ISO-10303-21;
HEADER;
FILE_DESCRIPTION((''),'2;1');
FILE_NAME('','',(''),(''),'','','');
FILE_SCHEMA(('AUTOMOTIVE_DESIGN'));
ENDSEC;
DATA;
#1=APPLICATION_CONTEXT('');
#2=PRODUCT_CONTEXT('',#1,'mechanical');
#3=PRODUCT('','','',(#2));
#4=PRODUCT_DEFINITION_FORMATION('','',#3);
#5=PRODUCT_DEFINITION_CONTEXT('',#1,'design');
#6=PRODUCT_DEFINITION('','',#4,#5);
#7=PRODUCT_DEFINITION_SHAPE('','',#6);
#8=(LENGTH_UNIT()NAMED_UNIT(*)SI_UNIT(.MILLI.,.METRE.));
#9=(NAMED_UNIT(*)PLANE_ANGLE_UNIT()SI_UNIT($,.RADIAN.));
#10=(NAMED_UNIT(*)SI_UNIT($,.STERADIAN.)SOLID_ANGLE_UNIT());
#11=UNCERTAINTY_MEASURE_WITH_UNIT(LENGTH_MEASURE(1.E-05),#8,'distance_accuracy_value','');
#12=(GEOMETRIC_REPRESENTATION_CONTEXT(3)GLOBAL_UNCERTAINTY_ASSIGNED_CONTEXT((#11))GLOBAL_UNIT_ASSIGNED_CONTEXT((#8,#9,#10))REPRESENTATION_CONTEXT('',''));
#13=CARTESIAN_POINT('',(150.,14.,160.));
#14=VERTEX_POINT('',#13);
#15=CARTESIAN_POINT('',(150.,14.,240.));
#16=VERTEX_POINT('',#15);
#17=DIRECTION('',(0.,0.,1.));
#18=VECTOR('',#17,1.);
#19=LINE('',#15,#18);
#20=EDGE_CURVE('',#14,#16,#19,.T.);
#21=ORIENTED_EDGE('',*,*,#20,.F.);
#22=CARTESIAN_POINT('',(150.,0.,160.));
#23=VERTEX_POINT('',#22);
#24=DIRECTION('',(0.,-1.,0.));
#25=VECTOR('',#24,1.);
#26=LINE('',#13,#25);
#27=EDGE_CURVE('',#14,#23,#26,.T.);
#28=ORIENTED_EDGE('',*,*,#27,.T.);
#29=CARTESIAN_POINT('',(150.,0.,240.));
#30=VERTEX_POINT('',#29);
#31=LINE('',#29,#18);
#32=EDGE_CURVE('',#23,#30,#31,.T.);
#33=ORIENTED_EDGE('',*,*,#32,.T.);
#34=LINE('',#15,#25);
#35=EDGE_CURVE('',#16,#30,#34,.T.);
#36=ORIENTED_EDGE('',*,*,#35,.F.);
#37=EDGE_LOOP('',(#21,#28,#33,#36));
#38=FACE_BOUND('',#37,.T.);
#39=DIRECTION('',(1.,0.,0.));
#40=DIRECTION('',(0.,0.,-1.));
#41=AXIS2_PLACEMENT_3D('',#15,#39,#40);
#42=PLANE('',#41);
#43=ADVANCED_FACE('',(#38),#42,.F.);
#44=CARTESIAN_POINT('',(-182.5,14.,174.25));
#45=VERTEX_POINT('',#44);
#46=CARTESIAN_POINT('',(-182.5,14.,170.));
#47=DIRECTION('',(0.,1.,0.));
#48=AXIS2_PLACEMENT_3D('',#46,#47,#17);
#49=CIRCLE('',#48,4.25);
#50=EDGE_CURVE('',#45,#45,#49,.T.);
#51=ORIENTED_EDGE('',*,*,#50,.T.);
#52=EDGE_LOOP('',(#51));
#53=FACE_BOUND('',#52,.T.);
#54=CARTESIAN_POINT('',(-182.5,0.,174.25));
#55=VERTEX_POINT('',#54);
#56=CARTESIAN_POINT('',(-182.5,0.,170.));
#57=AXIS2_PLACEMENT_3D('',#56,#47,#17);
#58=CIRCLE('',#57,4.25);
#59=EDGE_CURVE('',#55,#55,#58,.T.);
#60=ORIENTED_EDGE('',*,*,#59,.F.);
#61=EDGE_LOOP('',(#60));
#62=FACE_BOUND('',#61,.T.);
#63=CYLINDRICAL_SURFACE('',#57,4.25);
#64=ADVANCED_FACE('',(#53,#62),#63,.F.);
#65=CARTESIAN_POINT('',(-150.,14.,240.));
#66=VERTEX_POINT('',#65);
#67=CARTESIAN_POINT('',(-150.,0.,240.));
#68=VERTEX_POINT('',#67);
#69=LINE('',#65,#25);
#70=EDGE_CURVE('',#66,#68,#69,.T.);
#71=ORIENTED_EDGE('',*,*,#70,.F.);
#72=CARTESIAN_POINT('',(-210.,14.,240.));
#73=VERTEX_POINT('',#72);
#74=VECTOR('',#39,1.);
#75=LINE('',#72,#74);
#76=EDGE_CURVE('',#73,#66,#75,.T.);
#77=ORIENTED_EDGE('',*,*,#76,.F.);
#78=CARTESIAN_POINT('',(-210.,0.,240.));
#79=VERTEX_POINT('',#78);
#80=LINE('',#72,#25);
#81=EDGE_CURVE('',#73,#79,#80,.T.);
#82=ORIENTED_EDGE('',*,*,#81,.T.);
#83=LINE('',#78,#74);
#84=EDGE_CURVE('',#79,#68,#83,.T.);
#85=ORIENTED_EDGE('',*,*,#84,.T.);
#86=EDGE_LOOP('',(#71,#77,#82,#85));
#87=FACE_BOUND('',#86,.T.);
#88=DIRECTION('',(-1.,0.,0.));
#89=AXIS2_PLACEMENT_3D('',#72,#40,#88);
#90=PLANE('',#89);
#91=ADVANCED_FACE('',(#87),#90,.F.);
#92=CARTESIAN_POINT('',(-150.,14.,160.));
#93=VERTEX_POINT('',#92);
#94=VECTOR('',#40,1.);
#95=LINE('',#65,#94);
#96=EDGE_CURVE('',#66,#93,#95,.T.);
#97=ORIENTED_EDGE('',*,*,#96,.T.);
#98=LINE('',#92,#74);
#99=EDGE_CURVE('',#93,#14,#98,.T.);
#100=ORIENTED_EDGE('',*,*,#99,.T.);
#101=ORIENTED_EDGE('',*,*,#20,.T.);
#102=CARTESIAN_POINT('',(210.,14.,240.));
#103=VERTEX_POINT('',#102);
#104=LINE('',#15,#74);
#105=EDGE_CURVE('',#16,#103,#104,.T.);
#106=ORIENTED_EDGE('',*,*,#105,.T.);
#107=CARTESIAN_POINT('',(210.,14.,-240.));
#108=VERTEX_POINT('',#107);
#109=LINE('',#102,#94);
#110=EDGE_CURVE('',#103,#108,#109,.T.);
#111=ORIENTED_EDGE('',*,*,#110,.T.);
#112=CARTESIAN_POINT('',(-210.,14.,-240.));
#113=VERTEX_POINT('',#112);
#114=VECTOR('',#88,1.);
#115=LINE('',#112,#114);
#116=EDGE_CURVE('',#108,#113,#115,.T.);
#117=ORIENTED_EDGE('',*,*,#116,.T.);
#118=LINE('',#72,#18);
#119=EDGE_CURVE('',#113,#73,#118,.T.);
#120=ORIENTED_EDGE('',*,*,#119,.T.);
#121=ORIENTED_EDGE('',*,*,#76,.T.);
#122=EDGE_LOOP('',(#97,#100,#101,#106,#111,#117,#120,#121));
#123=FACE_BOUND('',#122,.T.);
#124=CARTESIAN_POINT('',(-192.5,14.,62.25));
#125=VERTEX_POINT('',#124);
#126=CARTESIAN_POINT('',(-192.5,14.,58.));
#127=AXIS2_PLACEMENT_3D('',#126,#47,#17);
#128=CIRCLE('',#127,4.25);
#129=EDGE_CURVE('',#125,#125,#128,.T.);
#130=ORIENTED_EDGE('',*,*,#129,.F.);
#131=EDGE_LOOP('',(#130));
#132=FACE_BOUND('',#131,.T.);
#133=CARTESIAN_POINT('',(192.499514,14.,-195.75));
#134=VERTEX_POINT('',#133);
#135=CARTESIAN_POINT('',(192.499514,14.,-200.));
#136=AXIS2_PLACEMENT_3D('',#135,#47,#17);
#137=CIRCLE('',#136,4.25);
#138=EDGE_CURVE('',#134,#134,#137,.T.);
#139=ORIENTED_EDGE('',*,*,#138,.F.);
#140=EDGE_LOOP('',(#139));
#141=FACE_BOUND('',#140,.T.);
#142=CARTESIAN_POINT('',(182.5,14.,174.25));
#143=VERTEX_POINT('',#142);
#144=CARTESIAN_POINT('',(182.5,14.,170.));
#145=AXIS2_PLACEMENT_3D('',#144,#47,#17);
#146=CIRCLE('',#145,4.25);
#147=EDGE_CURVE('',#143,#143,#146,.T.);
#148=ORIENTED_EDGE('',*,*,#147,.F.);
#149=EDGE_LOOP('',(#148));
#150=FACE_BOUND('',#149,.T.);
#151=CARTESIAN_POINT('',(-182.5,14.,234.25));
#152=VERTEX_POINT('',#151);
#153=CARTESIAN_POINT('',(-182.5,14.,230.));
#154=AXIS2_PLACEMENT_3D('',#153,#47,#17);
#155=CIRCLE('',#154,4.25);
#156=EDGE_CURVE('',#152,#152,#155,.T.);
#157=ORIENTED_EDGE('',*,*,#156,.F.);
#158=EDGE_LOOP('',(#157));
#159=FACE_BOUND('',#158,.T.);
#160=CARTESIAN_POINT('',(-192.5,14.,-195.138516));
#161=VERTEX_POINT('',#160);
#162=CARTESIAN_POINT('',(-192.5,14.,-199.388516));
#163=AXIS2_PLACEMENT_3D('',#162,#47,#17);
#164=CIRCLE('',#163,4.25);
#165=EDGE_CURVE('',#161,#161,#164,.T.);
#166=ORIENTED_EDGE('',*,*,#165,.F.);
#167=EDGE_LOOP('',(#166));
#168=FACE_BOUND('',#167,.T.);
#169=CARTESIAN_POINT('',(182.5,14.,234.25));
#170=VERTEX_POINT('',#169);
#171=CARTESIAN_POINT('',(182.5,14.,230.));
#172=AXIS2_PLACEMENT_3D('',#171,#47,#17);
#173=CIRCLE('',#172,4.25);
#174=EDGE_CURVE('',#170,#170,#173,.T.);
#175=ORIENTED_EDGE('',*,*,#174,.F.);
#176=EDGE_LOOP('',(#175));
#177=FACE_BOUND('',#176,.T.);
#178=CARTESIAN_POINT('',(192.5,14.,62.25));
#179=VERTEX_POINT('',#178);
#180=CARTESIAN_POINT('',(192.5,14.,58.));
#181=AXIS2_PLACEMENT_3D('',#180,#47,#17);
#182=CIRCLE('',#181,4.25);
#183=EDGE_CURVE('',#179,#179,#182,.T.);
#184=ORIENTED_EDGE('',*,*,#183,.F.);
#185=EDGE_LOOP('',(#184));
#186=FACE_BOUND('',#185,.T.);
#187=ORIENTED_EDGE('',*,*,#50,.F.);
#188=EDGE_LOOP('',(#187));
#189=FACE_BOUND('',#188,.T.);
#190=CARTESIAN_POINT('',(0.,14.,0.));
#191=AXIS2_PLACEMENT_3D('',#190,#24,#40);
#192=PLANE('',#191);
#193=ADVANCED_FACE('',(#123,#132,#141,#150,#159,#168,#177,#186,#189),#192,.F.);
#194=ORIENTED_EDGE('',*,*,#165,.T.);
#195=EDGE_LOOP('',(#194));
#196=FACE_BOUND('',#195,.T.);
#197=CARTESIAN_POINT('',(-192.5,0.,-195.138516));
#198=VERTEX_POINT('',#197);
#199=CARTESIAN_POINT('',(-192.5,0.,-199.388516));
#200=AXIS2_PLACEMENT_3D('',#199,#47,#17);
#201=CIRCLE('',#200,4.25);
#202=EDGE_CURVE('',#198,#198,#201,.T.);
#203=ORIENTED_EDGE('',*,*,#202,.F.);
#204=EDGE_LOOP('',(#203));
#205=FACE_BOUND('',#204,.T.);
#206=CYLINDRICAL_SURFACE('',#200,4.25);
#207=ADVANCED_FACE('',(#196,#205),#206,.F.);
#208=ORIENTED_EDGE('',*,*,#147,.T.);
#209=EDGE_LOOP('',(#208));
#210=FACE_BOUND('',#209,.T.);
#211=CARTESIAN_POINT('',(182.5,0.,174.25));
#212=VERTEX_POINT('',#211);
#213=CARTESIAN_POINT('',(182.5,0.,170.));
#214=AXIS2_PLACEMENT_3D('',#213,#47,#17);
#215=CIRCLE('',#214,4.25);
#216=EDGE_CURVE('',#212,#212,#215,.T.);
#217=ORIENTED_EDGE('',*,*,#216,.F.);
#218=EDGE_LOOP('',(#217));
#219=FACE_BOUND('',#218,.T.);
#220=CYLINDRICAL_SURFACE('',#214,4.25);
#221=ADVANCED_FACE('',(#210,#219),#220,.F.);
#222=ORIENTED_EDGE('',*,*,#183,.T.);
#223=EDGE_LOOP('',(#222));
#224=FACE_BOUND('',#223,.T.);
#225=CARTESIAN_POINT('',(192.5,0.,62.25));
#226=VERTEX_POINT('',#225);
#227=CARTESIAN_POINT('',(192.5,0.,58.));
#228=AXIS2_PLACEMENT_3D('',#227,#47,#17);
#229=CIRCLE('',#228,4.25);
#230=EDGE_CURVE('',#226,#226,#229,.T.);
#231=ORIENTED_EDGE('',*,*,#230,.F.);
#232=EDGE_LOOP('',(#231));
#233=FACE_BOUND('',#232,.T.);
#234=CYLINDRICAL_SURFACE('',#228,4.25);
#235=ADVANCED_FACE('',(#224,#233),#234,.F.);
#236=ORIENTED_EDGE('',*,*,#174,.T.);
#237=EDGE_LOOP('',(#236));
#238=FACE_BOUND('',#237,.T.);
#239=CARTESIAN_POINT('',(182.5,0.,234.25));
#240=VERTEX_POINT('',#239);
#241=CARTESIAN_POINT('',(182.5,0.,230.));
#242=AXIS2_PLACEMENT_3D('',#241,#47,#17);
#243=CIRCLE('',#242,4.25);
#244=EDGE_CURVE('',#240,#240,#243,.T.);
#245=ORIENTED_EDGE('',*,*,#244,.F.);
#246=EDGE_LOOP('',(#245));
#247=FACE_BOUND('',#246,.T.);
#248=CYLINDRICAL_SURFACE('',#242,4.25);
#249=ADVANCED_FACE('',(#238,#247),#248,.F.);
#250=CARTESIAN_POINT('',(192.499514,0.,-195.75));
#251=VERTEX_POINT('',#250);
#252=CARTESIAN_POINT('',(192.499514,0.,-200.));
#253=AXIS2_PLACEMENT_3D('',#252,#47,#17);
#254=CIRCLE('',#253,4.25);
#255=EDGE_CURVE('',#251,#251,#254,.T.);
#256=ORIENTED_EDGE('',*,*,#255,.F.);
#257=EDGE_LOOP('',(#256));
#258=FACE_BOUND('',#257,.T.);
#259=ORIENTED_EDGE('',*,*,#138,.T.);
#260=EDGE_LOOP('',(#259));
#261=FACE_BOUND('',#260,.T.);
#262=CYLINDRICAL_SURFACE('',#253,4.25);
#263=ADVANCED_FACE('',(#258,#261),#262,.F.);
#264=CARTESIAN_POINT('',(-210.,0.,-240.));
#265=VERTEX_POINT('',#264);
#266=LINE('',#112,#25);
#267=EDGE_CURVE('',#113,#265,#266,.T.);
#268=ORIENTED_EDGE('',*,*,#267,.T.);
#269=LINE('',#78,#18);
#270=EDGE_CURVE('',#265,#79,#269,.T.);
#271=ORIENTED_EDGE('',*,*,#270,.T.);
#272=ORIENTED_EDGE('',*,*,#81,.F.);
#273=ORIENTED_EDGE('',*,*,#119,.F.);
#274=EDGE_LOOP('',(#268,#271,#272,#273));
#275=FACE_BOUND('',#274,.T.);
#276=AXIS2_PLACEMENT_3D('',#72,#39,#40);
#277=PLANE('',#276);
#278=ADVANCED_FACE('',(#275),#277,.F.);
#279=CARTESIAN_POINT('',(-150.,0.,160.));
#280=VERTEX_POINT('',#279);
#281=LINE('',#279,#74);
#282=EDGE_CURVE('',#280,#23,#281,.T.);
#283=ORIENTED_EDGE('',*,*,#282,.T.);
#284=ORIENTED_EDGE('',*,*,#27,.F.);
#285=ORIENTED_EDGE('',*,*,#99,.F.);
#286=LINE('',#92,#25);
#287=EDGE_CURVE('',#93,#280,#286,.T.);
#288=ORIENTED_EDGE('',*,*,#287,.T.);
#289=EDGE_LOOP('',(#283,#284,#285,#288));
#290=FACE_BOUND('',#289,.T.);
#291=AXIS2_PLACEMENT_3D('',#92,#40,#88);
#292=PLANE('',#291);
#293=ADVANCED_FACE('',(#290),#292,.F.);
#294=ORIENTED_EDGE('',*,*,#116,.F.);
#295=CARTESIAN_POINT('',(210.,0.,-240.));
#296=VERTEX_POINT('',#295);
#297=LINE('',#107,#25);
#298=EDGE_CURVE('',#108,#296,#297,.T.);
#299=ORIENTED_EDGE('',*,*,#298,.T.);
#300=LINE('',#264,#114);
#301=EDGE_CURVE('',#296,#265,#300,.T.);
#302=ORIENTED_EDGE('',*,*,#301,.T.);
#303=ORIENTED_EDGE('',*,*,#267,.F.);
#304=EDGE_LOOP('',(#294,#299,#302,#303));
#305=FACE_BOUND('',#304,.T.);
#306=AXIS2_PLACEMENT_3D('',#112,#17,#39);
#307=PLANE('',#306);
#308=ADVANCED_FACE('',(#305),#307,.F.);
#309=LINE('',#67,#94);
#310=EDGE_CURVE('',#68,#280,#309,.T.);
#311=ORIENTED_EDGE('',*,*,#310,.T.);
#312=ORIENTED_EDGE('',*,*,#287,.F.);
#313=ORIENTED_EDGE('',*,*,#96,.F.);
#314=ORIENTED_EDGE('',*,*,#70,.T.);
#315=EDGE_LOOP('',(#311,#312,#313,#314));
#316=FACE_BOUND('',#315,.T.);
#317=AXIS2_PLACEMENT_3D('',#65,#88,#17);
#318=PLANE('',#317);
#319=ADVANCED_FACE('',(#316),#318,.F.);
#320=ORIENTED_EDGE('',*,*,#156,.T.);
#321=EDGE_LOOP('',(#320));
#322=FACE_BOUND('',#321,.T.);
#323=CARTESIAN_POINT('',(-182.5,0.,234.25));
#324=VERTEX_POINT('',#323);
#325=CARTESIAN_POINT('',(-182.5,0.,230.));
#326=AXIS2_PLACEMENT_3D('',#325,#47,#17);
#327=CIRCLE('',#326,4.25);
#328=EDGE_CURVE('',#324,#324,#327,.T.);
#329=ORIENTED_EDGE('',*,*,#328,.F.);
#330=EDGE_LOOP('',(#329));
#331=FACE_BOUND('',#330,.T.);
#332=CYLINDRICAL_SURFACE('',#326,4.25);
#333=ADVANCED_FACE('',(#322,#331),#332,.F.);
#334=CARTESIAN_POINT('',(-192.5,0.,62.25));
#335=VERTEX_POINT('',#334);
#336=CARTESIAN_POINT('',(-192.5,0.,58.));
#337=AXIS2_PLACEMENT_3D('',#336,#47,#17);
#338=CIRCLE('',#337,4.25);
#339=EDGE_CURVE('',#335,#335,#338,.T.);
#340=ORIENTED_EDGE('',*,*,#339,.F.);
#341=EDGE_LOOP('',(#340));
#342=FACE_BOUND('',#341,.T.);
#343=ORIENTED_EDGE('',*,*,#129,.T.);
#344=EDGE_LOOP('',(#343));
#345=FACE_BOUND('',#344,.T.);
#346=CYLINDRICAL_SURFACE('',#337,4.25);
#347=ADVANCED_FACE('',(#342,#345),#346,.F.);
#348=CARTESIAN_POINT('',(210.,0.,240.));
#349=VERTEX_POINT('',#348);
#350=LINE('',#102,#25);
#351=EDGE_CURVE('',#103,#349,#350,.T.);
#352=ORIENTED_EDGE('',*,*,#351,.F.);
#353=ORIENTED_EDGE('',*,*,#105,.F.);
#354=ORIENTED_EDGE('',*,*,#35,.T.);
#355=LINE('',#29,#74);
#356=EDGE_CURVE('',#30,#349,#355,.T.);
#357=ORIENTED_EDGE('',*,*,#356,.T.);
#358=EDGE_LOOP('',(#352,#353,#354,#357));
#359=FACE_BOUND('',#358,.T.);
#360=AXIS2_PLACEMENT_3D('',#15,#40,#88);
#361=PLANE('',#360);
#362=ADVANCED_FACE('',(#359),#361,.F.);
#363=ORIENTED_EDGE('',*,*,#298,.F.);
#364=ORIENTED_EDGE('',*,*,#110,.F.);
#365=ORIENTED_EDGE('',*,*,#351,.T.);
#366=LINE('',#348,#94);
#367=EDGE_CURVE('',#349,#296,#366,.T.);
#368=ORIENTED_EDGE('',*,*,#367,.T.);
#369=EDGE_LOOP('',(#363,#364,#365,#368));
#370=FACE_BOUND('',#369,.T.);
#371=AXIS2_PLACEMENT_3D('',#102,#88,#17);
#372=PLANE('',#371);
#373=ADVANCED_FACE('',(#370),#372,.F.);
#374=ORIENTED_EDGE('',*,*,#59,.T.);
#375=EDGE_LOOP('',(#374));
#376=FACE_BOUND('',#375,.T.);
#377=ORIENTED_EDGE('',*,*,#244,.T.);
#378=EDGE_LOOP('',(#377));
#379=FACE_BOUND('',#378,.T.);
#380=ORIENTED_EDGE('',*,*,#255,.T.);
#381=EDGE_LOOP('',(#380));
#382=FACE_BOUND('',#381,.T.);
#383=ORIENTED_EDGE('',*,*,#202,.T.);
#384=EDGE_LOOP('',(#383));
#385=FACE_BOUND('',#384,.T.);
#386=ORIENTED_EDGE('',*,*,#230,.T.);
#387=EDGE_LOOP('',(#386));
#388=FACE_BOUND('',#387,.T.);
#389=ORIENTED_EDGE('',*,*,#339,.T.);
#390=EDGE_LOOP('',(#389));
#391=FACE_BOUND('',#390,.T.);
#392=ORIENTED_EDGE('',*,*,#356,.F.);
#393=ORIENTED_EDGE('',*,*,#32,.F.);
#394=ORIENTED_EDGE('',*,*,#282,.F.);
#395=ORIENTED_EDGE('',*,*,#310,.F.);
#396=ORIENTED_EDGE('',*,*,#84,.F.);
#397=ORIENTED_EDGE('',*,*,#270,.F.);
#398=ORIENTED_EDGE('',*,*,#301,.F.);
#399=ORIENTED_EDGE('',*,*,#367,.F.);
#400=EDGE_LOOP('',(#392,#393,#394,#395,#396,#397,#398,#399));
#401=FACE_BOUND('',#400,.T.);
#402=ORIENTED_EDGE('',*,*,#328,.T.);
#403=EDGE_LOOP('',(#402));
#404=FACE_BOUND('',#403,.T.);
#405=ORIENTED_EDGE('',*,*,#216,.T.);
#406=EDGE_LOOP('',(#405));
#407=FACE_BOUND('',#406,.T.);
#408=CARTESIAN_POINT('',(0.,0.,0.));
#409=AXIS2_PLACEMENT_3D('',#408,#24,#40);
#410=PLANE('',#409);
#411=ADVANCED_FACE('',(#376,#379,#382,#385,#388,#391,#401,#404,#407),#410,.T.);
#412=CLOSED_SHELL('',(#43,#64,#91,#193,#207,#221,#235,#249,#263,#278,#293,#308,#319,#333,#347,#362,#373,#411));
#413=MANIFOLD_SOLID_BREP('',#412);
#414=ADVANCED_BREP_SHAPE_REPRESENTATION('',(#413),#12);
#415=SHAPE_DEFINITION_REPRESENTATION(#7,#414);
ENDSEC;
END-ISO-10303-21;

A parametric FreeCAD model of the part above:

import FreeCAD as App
import Part
import Sketcher
Q = App.Units.Quantity

doc = App.newDocument("Part")
params = doc.addObject("Spreadsheet::Sheet", "Params")
for row, (alias, value) in enumerate([
    ("sketch1_width", "60 mm"),
    ("sketch1_width2", "420 mm"),
    ("sketch1_height", "480 mm"),
    ("sketch1_height2", "80 mm"),
    ("pad1_length", "14 mm"),
    ("sketch2_diameter", "8.5 mm"),
], start=1):
    params.set(f"A{row}", alias)
    params.set(f"B{row}", "=" + value)
    params.setAlias(f"B{row}", alias)

body = doc.addObject("PartDesign::Body", "Body")

sketch1 = body.newObject("Sketcher::SketchObject", "Sketch")
sketch1.AttachmentSupport = (doc.getObject("XZ_Plane"), [""])
sketch1.MapMode = "FlatFace"
sketch1.addGeometry(Part.LineSegment(App.Vector(150, 240, 0), App.Vector(210, 240, 0)), False)
sketch1.addGeometry(Part.LineSegment(App.Vector(210, 240, 0), App.Vector(210, -240, 0)), False)
sketch1.addGeometry(Part.LineSegment(App.Vector(210, -240, 0), App.Vector(-210, -240, 0)), False)
sketch1.addGeometry(Part.LineSegment(App.Vector(-210, -240, 0), App.Vector(-210, 240, 0)), False)
sketch1.addGeometry(Part.LineSegment(App.Vector(-210, 240, 0), App.Vector(-150, 240, 0)), False)
sketch1.addGeometry(Part.LineSegment(App.Vector(-150, 240, 0), App.Vector(-150, 160, 0)), False)
sketch1.addGeometry(Part.LineSegment(App.Vector(-150, 160, 0), App.Vector(150, 160, 0)), False)
sketch1.addGeometry(Part.LineSegment(App.Vector(150, 160, 0), App.Vector(150, 240, 0)), False)
sketch1.addConstraint(Sketcher.Constraint("Coincident", 0, 2, 1, 1))
sketch1.addConstraint(Sketcher.Constraint("Coincident", 1, 2, 2, 1))
sketch1.addConstraint(Sketcher.Constraint("Coincident", 2, 2, 3, 1))
sketch1.addConstraint(Sketcher.Constraint("Coincident", 3, 2, 4, 1))
sketch1.addConstraint(Sketcher.Constraint("Coincident", 4, 2, 5, 1))
sketch1.addConstraint(Sketcher.Constraint("Coincident", 5, 2, 6, 1))
sketch1.addConstraint(Sketcher.Constraint("Coincident", 6, 2, 7, 1))
sketch1.addConstraint(Sketcher.Constraint("Coincident", 7, 2, 0, 1))
sketch1.addConstraint(Sketcher.Constraint("Horizontal", 0))
sketch1.addConstraint(Sketcher.Constraint("Vertical", 1))
sketch1.addConstraint(Sketcher.Constraint("Horizontal", 2))
sketch1.addConstraint(Sketcher.Constraint("Vertical", 3))
sketch1.addConstraint(Sketcher.Constraint("Horizontal", 4))
sketch1.addConstraint(Sketcher.Constraint("Vertical", 5))
sketch1.addConstraint(Sketcher.Constraint("Horizontal", 6))
sketch1.addConstraint(Sketcher.Constraint("Vertical", 7))
sketch1.addConstraint(Sketcher.Constraint("Symmetric", 0, 2, 2, 2, -1, 1))
sketch1.addConstraint(Sketcher.Constraint("Symmetric", 4, 2, 7, 2, -2))
sketch1.addConstraint(Sketcher.Constraint("DistanceX", 0, 1, 0, 2, Q("60 mm")))
sketch1.addConstraint(Sketcher.Constraint("DistanceX", 2, 2, 2, 1, Q("420 mm")))
sketch1.addConstraint(Sketcher.Constraint("DistanceY", 1, 2, 1, 1, Q("480 mm")))
sketch1.addConstraint(Sketcher.Constraint("DistanceY", 5, 2, 5, 1, Q("80 mm")))
sketch1.setExpression("Constraints[18]", "Params.sketch1_width")
sketch1.setExpression("Constraints[19]", "Params.sketch1_width2")
sketch1.setExpression("Constraints[20]", "Params.sketch1_height")
sketch1.setExpression("Constraints[21]", "Params.sketch1_height2")
pad1 = body.newObject("PartDesign::Pad", "Pad")
pad1.Profile = sketch1
pad1.setExpression("Length", "Params.pad1_length")
pad1.Reversed = True

sketch2 = body.newObject("Sketcher::SketchObject", "Sketch001")
sketch2.AttachmentSupport = (doc.getObject("XZ_Plane"), [""])
sketch2.MapMode = "FlatFace"
sketch2.AttachmentOffset = App.Placement(App.Vector(0, 0, -14), App.Rotation())
sketch2.addGeometry(Part.Circle(App.Vector(-182.5, 230, 0), App.Vector(0, 0, 1), 4.25), False)
sketch2.addGeometry(Part.Circle(App.Vector(-182.5, 170, 0), App.Vector(0, 0, 1), 4.25), False)
sketch2.addGeometry(Part.Circle(App.Vector(-192.5, 58, 0), App.Vector(0, 0, 1), 4.25), False)
sketch2.addGeometry(Part.Circle(App.Vector(-192.5, -199.388516, 0), App.Vector(0, 0, 1), 4.25), False)
sketch2.addGeometry(Part.Circle(App.Vector(192.499514, -200, 0), App.Vector(0, 0, 1), 4.25), False)
sketch2.addGeometry(Part.Circle(App.Vector(192.5, 58, 0), App.Vector(0, 0, 1), 4.25), False)
sketch2.addGeometry(Part.Circle(App.Vector(182.5, 170, 0), App.Vector(0, 0, 1), 4.25), False)
sketch2.addGeometry(Part.Circle(App.Vector(182.5, 230, 0), App.Vector(0, 0, 1), 4.25), False)
sketch2.addConstraint(Sketcher.Constraint("Equal", 0, 1))
sketch2.addConstraint(Sketcher.Constraint("Equal", 1, 2))
sketch2.addConstraint(Sketcher.Constraint("Equal", 2, 3))
sketch2.addConstraint(Sketcher.Constraint("Equal", 3, 4))
sketch2.addConstraint(Sketcher.Constraint("Equal", 4, 5))
sketch2.addConstraint(Sketcher.Constraint("Equal", 5, 6))
sketch2.addConstraint(Sketcher.Constraint("Equal", 6, 7))
sketch2.addConstraint(Sketcher.Constraint("Symmetric", 2, 3, 5, 3, -2))
sketch2.addConstraint(Sketcher.Constraint("Symmetric", 1, 3, 6, 3, -2))
sketch2.addConstraint(Sketcher.Constraint("Symmetric", 0, 3, 7, 3, -2))
sketch2.addConstraint(Sketcher.Constraint("Vertical", 0, 3, 1, 3))
sketch2.addConstraint(Sketcher.Constraint("Vertical", 2, 3, 3, 3))
sketch2.addConstraint(Sketcher.Constraint("Diameter", 0, Q("8.5 mm")))
sketch2.addConstraint(Sketcher.Constraint("DistanceY", -1, 1, 0, 3, Q("230 mm")))
sketch2.addConstraint(Sketcher.Constraint("DistanceY", -1, 1, 1, 3, Q("170 mm")))
sketch2.addConstraint(Sketcher.Constraint("DistanceY", -1, 1, 2, 3, Q("58 mm")))
sketch2.addConstraint(Sketcher.Constraint("DistanceY", 4, 3, -1, 1, Q("200 mm")))
sketch2.addConstraint(Sketcher.Constraint("DistanceX", 2, 3, 1, 3, Q("10 mm")))
sketch2.addConstraint(Sketcher.Constraint("DistanceX", 2, 3, 5, 3, Q("385 mm")))
sketch2.addConstraint(Sketcher.Constraint("DistanceY", 3, 3, -1, 1, Q("199.388516 mm")))
sketch2.addConstraint(Sketcher.Constraint("DistanceX", -1, 1, 4, 3, Q("192.499514 mm")))
sketch2.setExpression("Constraints[12]", "Params.sketch2_diameter")
pocket1 = body.newObject("PartDesign::Pocket", "Pocket")
pocket1.Profile = sketch2
pocket1.Type = "ThroughAll"
pocket1.Reversed = True

doc.recompute()
